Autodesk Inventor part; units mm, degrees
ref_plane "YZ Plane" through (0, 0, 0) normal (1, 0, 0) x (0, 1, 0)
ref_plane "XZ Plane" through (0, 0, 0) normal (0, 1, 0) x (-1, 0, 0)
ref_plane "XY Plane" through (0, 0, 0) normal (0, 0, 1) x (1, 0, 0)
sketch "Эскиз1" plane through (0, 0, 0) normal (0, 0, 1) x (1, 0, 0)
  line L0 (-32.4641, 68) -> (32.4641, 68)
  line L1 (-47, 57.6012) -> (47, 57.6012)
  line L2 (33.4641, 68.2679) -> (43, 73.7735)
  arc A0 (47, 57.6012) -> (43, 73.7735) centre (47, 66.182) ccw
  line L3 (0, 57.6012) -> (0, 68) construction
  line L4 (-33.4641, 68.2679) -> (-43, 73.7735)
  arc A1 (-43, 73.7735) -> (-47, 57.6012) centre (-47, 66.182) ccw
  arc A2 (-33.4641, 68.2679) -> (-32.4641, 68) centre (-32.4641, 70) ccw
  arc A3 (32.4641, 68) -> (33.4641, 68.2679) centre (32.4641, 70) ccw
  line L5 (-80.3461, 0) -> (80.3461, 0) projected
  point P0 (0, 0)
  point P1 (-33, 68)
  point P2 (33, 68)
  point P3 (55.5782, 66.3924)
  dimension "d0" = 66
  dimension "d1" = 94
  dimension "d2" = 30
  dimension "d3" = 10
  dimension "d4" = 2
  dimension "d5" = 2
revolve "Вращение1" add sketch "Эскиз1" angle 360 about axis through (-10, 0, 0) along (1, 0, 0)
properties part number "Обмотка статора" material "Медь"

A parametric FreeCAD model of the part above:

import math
import FreeCAD as App
import Part
import Sketcher
from FreeCAD import Vector
Q = App.Units.Quantity

doc = App.newDocument("Part")
body = doc.addObject("PartDesign::Body", "Body")

sketch1 = body.newObject("Sketcher::SketchObject", "Sketch")
sketch1.AttachmentSupport = (doc.getObject("XY_Plane"), [""])
sketch1.MapMode = "FlatFace"
sketch1.addGeometry(Part.LineSegment(Vector(32.5, 68, 0), Vector(-32.5, 68, 0)), False)
sketch1.addGeometry(Part.ArcOfCircle(Part.Circle(Vector(-32.5, 70, 0), Vector(0, 0, 1), 2), math.radians(-120), math.radians(-90)), False)
sketch1.addGeometry(Part.LineSegment(Vector(-33.5, 68.3, 0), Vector(-43, 73.8, 0)), False)
sketch1.addGeometry(Part.ArcOfCircle(Part.Circle(Vector(-47, 66.2, 0), Vector(0, 0, 1), 8.6), math.radians(62), math.radians(270)), False)
sketch1.addGeometry(Part.LineSegment(Vector(-47, 57.6, 0), Vector(47, 57.6, 0)), False)
sketch1.addGeometry(Part.ArcOfCircle(Part.Circle(Vector(47, 66.2, 0), Vector(0, 0, 1), 8.6), math.radians(-90), math.radians(118)), False)
sketch1.addGeometry(Part.LineSegment(Vector(43, 73.8, 0), Vector(33.5, 68.3, 0)), False)
sketch1.addGeometry(Part.ArcOfCircle(Part.Circle(Vector(32.5, 70, 0), Vector(0, 0, 1), 2), math.radians(-90), math.radians(-60)), False)
sketch1.addConstraint(Sketcher.Constraint("Tangent", 0, 2, 1, 2))
sketch1.addConstraint(Sketcher.Constraint("Tangent", 1, 1, 2, 1))
sketch1.addConstraint(Sketcher.Constraint("Coincident", 2, 2, 3, 1))
sketch1.addConstraint(Sketcher.Constraint("Tangent", 3, 2, 4, 1))
sketch1.addConstraint(Sketcher.Constraint("Tangent", 4, 2, 5, 1))
sketch1.addConstraint(Sketcher.Constraint("Coincident", 5, 2, 6, 1))
sketch1.addConstraint(Sketcher.Constraint("Tangent", 6, 2, 7, 2))
sketch1.addConstraint(Sketcher.Constraint("Tangent", 7, 1, 0, 1))
sketch1.addConstraint(Sketcher.Constraint("Horizontal", 0))
sketch1.addConstraint(Sketcher.Constraint("Horizontal", 4))
sketch1.addConstraint(Sketcher.Constraint("Equal", 3, 5))
sketch1.addConstraint(Sketcher.Constraint("Equal", 1, 7))
sketch1.addConstraint(Sketcher.Constraint("Symmetric", 2, 2, 5, 2, -2))
sketch1.addConstraint(Sketcher.Constraint("Horizontal", 1, 1, 6, 2))
sketch1.addConstraint(Sketcher.Constraint("Radius", 1, Q("2 mm")))
sketch1.addConstraint(Sketcher.Constraint("DistanceX", 4, 1, 4, 2, Q("94 mm")))
sketch1.addConstraint(Sketcher.Constraint("Angle", 2, Q("149.9998 deg")))
sketch1.addConstraint(Sketcher.Constraint("DistanceY", -1, 1, 1, 3, Q("70 mm")))
sketch1.addConstraint(Sketcher.Constraint("DistanceX", 2, 2, -1, 1, Q("43 mm")))
sketch1.addConstraint(Sketcher.Constraint("Radius", 3, Q("8.5808 mm")))
sketch1.addConstraint(Sketcher.Constraint("DistanceX", 0, 2, 0, 1, Q("64.9282 mm")))
revolution = body.newObject("PartDesign::Revolution", "Revolution")
revolution.Profile = sketch1
revolution.ReferenceAxis = (sketch1, ["H_Axis"])
revolution.Angle = 360

doc.recompute()
